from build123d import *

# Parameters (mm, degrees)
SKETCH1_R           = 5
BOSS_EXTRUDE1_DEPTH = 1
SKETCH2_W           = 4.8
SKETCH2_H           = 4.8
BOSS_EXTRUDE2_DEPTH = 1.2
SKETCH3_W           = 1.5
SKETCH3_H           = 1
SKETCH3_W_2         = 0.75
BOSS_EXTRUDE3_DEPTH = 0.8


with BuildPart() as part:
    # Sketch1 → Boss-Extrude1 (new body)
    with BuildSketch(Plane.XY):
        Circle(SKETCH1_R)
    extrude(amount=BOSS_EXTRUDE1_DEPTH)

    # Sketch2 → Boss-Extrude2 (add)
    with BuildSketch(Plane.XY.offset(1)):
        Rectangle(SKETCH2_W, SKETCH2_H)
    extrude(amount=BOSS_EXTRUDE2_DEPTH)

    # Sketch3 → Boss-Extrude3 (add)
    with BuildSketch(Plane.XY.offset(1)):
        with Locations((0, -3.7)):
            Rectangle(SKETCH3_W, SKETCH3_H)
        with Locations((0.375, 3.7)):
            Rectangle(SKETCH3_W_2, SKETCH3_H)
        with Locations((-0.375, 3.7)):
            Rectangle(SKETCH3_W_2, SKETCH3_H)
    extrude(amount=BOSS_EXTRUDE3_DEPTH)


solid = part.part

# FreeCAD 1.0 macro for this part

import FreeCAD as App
import Part
import Sketcher
from FreeCAD import Vector


def add_polygon(sketch, points):
    """Adds a closed chain of lines whose ends are joined by coincident constraints."""
    first, n = sketch.GeometryCount, len(points)
    for a, b in zip(points, points[1:] + points[:1]):
        sketch.addGeometry(Part.LineSegment(App.Vector(*a, 0), App.Vector(*b, 0)), False)
    for i in range(n):
        sketch.addConstraint(Sketcher.Constraint("Coincident", first + i, 2, first + (i + 1) % n, 1))

doc = App.newDocument("Part")
body = doc.addObject("PartDesign::Body", "Body")

# Sketch on XY plane
sketch1 = body.newObject("Sketcher::SketchObject", "Sketch")
sketch1.AttachmentSupport = (doc.getObject("XY_Plane"), [""])
sketch1.MapMode = "FlatFace"
sketch1.addGeometry(Part.Circle(Vector(0, 0, 0), Vector(0, 0, 1), 5), False)
sketch1.addConstraint([
    Sketcher.Constraint("Coincident", 0, 3, -1, 1),
    Sketcher.Constraint("Diameter", 0, 10.0),
])
pad1 = body.newObject("PartDesign::Pad", "Pad")
pad1.Profile = sketch1
pad1.Length = 1

# Sketch on XY plane
sketch2 = body.newObject("Sketcher::SketchObject", "Sketch001")
sketch2.AttachmentSupport = (doc.getObject("XY_Plane"), [""])
sketch2.MapMode = "FlatFace"
sketch2.AttachmentOffset = App.Placement(Vector(0, 0, 1), App.Rotation())
add_polygon(sketch2, [(-2.4, 2.4), (-2.4, -2.4), (2.4, -2.4), (2.4, 2.4)])  # lines 0-3
sketch2.addConstraint([
    Sketcher.Constraint("Vertical", 0),
    Sketcher.Constraint("Horizontal", 1),
    Sketcher.Constraint("Vertical", 2),
    Sketcher.Constraint("Horizontal", 3),
    Sketcher.Constraint("Symmetric", 0, 2, 2, 2, -1, 1),
    Sketcher.Constraint("Equal", 3, 0),
    Sketcher.Constraint("DistanceX", 1, 1, 1, 2, 4.8),
])
pad2 = body.newObject("PartDesign::Pad", "Pad001")
pad2.Profile = sketch2
pad2.Length = 1.2

# Sketch on XY plane
sketch3 = body.newObject("Sketcher::SketchObject", "Sketch002")
sketch3.AttachmentSupport = (doc.getObject("XY_Plane"), [""])
sketch3.MapMode = "FlatFace"
sketch3.AttachmentOffset = App.Placement(Vector(0, 0, 1), App.Rotation())
add_polygon(sketch3, [(-0.8, -3.2), (-0.8, -4.2), (0.8, -4.2), (0.8, -3.2)])  # lines 0-3
add_polygon(sketch3, [(0.8, 3.2), (0.8, 4.2), (-0.8, 4.2), (-0.8, 3.2)])  # lines 4-7
sketch3.addConstraint([
    Sketcher.Constraint("Vertical", 0),
    Sketcher.Constraint("Horizontal", 1),
    Sketcher.Constraint("Vertical", 2),
    Sketcher.Constraint("Horizontal", 3),
    Sketcher.Constraint("Vertical", 4),
    Sketcher.Constraint("Horizontal", 5),
    Sketcher.Constraint("Vertical", 6),
    Sketcher.Constraint("Horizontal", 7),
    Sketcher.Constraint("Symmetric", 0, 2, 4, 2, -1, 1),
    Sketcher.Constraint("Symmetric", 2, 2, 6, 2, -1, 1),
    Sketcher.Constraint("Vertical", 2, 2, 4, 2),
    Sketcher.Constraint("DistanceY", 0, 2, 0, 1, 1.0),
    Sketcher.Constraint("DistanceX", 1, 1, 1, 2, 1.5),
    Sketcher.Constraint("DistanceY", 0, 2, -1, 1, 4.2),
])
pad3 = body.newObject("PartDesign::Pad", "Pad002")
pad3.Profile = sketch3
pad3.Length = 0.8

doc.recompute()
